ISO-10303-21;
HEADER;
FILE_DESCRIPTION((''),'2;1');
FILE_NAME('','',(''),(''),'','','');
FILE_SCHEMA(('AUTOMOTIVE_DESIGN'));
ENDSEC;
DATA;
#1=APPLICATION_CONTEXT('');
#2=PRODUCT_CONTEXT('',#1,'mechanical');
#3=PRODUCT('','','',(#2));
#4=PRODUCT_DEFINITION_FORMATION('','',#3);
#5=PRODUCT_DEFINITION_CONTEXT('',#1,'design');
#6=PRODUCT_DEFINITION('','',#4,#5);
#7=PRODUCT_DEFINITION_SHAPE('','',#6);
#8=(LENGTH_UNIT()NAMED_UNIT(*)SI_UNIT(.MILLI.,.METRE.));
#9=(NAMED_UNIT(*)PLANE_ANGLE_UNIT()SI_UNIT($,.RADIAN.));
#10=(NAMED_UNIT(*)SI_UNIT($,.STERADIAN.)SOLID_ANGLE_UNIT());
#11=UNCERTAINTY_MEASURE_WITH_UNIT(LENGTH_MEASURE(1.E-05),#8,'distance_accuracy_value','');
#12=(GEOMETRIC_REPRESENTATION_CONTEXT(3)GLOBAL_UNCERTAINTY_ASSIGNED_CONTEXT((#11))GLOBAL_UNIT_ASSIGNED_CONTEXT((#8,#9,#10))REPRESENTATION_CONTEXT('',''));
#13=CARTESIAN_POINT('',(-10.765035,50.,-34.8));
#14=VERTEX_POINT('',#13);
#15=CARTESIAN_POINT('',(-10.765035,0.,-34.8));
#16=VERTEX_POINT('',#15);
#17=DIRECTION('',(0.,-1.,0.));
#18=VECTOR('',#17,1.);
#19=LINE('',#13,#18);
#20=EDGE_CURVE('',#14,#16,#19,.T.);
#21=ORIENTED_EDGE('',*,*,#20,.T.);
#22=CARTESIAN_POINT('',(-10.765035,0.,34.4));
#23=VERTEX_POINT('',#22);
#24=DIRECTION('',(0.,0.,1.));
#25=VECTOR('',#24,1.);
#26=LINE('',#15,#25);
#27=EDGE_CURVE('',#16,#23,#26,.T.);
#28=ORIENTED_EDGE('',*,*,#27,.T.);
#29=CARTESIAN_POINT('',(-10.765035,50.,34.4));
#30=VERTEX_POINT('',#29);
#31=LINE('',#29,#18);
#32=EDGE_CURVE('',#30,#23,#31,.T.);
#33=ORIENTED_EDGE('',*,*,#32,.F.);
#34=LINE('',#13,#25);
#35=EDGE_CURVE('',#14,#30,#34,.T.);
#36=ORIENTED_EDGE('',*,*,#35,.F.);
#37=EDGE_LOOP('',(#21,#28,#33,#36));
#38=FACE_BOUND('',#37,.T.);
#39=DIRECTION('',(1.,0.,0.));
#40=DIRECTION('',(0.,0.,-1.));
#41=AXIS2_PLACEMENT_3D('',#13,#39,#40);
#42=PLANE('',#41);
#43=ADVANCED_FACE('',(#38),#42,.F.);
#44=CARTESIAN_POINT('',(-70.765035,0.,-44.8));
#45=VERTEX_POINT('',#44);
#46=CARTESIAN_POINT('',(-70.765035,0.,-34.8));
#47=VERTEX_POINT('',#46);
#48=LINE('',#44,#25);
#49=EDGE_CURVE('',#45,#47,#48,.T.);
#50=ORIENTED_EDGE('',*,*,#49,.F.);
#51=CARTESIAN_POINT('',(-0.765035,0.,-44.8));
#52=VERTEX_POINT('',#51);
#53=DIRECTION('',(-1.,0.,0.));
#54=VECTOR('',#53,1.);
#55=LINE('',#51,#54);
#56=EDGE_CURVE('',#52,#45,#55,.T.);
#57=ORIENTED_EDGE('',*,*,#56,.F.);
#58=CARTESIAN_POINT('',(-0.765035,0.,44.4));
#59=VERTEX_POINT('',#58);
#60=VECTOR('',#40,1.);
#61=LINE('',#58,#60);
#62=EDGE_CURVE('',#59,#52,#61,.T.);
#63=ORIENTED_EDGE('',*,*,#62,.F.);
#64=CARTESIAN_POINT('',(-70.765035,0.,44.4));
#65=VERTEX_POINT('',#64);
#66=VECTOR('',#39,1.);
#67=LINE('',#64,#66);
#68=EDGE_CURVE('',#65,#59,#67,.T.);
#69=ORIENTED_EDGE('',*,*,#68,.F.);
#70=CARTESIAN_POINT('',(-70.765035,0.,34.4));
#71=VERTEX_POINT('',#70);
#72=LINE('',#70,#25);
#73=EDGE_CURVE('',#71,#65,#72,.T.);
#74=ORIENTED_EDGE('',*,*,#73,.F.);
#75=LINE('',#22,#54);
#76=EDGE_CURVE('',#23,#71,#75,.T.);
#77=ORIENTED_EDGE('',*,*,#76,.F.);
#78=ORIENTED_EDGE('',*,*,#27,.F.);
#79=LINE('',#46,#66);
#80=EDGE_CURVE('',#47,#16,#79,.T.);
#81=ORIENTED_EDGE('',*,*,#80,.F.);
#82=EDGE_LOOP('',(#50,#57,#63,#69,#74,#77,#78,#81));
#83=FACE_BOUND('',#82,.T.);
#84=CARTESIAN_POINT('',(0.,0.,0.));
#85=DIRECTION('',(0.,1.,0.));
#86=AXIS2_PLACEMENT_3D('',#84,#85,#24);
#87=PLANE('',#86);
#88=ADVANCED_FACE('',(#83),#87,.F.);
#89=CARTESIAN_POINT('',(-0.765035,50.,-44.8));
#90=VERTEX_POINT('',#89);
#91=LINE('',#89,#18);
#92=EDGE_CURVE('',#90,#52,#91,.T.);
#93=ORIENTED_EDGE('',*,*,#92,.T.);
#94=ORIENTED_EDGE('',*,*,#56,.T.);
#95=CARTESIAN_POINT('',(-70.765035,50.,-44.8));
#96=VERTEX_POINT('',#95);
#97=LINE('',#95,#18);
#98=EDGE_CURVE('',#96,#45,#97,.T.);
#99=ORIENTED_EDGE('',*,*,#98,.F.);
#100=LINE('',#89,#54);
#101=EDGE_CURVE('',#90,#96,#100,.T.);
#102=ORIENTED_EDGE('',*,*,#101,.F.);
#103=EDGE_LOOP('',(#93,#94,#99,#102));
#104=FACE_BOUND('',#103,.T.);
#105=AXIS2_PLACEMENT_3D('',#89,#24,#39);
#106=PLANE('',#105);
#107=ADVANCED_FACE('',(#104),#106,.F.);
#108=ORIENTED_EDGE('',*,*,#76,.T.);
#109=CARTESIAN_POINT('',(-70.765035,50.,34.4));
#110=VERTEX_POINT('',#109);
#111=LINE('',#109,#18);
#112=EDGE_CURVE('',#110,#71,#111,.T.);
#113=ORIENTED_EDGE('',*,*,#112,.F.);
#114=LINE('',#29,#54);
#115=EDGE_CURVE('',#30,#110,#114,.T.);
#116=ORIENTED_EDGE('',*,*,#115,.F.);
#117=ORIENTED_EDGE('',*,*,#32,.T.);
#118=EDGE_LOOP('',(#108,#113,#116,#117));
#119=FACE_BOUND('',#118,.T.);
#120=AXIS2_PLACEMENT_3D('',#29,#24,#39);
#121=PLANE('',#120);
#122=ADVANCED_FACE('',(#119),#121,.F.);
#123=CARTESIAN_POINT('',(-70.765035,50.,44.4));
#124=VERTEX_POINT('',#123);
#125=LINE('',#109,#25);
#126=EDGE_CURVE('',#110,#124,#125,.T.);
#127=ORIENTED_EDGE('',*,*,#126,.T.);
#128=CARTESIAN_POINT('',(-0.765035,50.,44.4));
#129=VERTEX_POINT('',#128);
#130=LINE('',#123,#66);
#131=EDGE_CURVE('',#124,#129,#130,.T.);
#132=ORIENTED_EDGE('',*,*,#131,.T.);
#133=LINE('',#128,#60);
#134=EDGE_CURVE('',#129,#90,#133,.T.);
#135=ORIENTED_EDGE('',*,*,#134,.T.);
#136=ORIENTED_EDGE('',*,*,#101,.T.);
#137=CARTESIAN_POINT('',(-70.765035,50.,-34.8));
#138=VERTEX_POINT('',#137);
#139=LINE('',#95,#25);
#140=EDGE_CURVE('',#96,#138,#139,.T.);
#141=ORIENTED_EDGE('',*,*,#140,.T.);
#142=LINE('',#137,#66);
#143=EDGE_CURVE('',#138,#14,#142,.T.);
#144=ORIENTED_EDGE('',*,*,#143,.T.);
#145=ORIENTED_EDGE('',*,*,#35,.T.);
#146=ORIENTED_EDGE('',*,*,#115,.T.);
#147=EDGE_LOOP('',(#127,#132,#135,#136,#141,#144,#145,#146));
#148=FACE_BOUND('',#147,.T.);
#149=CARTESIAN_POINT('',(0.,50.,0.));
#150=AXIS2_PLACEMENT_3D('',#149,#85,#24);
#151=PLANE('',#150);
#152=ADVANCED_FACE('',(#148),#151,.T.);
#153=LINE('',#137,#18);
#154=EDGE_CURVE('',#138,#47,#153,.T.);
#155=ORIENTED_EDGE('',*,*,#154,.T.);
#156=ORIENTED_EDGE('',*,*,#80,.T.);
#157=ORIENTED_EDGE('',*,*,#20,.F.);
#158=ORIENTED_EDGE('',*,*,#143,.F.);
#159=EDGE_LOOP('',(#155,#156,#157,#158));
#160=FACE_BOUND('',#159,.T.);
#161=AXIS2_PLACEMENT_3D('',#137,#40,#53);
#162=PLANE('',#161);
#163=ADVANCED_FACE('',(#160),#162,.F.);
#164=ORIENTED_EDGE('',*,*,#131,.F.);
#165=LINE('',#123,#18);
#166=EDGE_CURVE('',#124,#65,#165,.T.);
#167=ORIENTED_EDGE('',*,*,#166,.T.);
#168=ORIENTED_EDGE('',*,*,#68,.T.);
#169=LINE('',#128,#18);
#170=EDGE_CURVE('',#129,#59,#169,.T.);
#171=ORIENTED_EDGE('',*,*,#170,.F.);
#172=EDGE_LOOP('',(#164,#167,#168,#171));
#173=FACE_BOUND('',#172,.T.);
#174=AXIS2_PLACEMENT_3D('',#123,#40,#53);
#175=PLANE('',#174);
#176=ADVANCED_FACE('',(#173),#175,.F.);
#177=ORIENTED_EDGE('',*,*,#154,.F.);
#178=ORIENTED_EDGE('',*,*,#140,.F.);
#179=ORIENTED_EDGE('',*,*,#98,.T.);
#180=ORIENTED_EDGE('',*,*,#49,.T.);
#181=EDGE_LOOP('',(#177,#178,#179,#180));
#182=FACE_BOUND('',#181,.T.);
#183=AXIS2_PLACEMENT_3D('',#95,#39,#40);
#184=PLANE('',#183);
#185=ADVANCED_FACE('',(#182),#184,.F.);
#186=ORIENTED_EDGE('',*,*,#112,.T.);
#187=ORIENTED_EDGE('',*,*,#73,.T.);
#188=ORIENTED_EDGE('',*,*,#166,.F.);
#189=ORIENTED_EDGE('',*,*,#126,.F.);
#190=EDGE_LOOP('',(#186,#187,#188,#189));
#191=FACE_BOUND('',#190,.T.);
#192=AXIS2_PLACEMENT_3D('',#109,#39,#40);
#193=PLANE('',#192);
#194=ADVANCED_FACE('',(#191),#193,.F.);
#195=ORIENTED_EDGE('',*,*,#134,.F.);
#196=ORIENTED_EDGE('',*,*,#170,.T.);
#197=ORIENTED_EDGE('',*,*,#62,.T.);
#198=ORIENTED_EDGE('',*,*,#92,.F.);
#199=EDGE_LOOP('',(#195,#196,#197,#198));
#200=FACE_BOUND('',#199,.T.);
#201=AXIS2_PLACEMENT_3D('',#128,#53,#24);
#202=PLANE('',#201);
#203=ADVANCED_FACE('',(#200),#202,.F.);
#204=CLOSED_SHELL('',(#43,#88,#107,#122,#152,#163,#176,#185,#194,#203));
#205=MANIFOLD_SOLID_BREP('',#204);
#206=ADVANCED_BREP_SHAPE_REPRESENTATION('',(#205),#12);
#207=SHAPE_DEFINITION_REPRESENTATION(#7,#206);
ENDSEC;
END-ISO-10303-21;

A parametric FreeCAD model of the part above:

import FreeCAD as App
import Part
import Sketcher

V = App.Vector


def add_polygon(sketch, points):
    """Adds a closed chain of lines whose ends are joined by coincident constraints."""
    first, n = sketch.GeometryCount, len(points)
    for a, b in zip(points, points[1:] + points[:1]):
        sketch.addGeometry(Part.LineSegment(App.Vector(*a, 0), App.Vector(*b, 0)), False)
    for i in range(n):
        sketch.addConstraint(Sketcher.Constraint("Coincident", first + i, 2, first + (i + 1) % n, 1))

doc = App.newDocument("Part")
params = doc.addObject("Spreadsheet::Sheet", "Params")
for row, (alias, value) in enumerate([
    ("sketch1_width", "60 mm"),
    ("sketch1_width2", "70 mm"),
    ("sketch1_height", "10 mm"),
    ("sketch1_height2", "69.2 mm"),
    ("pad1_length", "50 mm"),
], start=1):
    params.set(f"A{row}", alias)
    params.set(f"B{row}", "=" + value)
    params.setAlias(f"B{row}", alias)

body = doc.addObject("PartDesign::Body", "Body")

sketch1 = body.newObject("Sketcher::SketchObject", "Sketch")
sketch1.AttachmentSupport = (doc.getObject("XZ_Plane"), [""])
sketch1.MapMode = "FlatFace"
add_polygon(sketch1, [(-71, -35), (-11, -35), (-11, 34), (-71, 34), (-71, 44), (-1, 44), (-1, -45), (-71, -45)])
sketch1.addConstraint([
    Sketcher.Constraint("Horizontal", 0),
    Sketcher.Constraint("Vertical", 1),
    Sketcher.Constraint("Horizontal", 2),
    Sketcher.Constraint("Vertical", 3),
    Sketcher.Constraint("Horizontal", 4),
    Sketcher.Constraint("Vertical", 5),
    Sketcher.Constraint("Horizontal", 6),
    Sketcher.Constraint("Vertical", 7),
    Sketcher.Constraint("Vertical", 3, 2, 6, 2),
    Sketcher.Constraint("Equal", 3, 7),
    Sketcher.Constraint("DistanceX", 0, 1, 0, 2, 60.0),
    Sketcher.Constraint("DistanceX", 4, 1, 4, 2, 70.0),
    Sketcher.Constraint("DistanceY", 3, 1, 3, 2, 10.0),
    Sketcher.Constraint("DistanceY", 1, 1, 1, 2, 69.2),
    Sketcher.Constraint("DistanceY", 0, 2, -1, 1, 34.8),
    Sketcher.Constraint("DistanceX", 0, 2, -1, 1, 10.765035),
])
sketch1.setExpression("Constraints[18]", "Params.sketch1_width")
sketch1.setExpression("Constraints[19]", "Params.sketch1_width2")
sketch1.setExpression("Constraints[20]", "Params.sketch1_height")
sketch1.setExpression("Constraints[21]", "Params.sketch1_height2")
pad1 = body.newObject("PartDesign::Pad", "Pad")
pad1.Profile = sketch1
pad1.setExpression("Length", "Params.pad1_length")
pad1.Reversed = True

doc.recompute()
